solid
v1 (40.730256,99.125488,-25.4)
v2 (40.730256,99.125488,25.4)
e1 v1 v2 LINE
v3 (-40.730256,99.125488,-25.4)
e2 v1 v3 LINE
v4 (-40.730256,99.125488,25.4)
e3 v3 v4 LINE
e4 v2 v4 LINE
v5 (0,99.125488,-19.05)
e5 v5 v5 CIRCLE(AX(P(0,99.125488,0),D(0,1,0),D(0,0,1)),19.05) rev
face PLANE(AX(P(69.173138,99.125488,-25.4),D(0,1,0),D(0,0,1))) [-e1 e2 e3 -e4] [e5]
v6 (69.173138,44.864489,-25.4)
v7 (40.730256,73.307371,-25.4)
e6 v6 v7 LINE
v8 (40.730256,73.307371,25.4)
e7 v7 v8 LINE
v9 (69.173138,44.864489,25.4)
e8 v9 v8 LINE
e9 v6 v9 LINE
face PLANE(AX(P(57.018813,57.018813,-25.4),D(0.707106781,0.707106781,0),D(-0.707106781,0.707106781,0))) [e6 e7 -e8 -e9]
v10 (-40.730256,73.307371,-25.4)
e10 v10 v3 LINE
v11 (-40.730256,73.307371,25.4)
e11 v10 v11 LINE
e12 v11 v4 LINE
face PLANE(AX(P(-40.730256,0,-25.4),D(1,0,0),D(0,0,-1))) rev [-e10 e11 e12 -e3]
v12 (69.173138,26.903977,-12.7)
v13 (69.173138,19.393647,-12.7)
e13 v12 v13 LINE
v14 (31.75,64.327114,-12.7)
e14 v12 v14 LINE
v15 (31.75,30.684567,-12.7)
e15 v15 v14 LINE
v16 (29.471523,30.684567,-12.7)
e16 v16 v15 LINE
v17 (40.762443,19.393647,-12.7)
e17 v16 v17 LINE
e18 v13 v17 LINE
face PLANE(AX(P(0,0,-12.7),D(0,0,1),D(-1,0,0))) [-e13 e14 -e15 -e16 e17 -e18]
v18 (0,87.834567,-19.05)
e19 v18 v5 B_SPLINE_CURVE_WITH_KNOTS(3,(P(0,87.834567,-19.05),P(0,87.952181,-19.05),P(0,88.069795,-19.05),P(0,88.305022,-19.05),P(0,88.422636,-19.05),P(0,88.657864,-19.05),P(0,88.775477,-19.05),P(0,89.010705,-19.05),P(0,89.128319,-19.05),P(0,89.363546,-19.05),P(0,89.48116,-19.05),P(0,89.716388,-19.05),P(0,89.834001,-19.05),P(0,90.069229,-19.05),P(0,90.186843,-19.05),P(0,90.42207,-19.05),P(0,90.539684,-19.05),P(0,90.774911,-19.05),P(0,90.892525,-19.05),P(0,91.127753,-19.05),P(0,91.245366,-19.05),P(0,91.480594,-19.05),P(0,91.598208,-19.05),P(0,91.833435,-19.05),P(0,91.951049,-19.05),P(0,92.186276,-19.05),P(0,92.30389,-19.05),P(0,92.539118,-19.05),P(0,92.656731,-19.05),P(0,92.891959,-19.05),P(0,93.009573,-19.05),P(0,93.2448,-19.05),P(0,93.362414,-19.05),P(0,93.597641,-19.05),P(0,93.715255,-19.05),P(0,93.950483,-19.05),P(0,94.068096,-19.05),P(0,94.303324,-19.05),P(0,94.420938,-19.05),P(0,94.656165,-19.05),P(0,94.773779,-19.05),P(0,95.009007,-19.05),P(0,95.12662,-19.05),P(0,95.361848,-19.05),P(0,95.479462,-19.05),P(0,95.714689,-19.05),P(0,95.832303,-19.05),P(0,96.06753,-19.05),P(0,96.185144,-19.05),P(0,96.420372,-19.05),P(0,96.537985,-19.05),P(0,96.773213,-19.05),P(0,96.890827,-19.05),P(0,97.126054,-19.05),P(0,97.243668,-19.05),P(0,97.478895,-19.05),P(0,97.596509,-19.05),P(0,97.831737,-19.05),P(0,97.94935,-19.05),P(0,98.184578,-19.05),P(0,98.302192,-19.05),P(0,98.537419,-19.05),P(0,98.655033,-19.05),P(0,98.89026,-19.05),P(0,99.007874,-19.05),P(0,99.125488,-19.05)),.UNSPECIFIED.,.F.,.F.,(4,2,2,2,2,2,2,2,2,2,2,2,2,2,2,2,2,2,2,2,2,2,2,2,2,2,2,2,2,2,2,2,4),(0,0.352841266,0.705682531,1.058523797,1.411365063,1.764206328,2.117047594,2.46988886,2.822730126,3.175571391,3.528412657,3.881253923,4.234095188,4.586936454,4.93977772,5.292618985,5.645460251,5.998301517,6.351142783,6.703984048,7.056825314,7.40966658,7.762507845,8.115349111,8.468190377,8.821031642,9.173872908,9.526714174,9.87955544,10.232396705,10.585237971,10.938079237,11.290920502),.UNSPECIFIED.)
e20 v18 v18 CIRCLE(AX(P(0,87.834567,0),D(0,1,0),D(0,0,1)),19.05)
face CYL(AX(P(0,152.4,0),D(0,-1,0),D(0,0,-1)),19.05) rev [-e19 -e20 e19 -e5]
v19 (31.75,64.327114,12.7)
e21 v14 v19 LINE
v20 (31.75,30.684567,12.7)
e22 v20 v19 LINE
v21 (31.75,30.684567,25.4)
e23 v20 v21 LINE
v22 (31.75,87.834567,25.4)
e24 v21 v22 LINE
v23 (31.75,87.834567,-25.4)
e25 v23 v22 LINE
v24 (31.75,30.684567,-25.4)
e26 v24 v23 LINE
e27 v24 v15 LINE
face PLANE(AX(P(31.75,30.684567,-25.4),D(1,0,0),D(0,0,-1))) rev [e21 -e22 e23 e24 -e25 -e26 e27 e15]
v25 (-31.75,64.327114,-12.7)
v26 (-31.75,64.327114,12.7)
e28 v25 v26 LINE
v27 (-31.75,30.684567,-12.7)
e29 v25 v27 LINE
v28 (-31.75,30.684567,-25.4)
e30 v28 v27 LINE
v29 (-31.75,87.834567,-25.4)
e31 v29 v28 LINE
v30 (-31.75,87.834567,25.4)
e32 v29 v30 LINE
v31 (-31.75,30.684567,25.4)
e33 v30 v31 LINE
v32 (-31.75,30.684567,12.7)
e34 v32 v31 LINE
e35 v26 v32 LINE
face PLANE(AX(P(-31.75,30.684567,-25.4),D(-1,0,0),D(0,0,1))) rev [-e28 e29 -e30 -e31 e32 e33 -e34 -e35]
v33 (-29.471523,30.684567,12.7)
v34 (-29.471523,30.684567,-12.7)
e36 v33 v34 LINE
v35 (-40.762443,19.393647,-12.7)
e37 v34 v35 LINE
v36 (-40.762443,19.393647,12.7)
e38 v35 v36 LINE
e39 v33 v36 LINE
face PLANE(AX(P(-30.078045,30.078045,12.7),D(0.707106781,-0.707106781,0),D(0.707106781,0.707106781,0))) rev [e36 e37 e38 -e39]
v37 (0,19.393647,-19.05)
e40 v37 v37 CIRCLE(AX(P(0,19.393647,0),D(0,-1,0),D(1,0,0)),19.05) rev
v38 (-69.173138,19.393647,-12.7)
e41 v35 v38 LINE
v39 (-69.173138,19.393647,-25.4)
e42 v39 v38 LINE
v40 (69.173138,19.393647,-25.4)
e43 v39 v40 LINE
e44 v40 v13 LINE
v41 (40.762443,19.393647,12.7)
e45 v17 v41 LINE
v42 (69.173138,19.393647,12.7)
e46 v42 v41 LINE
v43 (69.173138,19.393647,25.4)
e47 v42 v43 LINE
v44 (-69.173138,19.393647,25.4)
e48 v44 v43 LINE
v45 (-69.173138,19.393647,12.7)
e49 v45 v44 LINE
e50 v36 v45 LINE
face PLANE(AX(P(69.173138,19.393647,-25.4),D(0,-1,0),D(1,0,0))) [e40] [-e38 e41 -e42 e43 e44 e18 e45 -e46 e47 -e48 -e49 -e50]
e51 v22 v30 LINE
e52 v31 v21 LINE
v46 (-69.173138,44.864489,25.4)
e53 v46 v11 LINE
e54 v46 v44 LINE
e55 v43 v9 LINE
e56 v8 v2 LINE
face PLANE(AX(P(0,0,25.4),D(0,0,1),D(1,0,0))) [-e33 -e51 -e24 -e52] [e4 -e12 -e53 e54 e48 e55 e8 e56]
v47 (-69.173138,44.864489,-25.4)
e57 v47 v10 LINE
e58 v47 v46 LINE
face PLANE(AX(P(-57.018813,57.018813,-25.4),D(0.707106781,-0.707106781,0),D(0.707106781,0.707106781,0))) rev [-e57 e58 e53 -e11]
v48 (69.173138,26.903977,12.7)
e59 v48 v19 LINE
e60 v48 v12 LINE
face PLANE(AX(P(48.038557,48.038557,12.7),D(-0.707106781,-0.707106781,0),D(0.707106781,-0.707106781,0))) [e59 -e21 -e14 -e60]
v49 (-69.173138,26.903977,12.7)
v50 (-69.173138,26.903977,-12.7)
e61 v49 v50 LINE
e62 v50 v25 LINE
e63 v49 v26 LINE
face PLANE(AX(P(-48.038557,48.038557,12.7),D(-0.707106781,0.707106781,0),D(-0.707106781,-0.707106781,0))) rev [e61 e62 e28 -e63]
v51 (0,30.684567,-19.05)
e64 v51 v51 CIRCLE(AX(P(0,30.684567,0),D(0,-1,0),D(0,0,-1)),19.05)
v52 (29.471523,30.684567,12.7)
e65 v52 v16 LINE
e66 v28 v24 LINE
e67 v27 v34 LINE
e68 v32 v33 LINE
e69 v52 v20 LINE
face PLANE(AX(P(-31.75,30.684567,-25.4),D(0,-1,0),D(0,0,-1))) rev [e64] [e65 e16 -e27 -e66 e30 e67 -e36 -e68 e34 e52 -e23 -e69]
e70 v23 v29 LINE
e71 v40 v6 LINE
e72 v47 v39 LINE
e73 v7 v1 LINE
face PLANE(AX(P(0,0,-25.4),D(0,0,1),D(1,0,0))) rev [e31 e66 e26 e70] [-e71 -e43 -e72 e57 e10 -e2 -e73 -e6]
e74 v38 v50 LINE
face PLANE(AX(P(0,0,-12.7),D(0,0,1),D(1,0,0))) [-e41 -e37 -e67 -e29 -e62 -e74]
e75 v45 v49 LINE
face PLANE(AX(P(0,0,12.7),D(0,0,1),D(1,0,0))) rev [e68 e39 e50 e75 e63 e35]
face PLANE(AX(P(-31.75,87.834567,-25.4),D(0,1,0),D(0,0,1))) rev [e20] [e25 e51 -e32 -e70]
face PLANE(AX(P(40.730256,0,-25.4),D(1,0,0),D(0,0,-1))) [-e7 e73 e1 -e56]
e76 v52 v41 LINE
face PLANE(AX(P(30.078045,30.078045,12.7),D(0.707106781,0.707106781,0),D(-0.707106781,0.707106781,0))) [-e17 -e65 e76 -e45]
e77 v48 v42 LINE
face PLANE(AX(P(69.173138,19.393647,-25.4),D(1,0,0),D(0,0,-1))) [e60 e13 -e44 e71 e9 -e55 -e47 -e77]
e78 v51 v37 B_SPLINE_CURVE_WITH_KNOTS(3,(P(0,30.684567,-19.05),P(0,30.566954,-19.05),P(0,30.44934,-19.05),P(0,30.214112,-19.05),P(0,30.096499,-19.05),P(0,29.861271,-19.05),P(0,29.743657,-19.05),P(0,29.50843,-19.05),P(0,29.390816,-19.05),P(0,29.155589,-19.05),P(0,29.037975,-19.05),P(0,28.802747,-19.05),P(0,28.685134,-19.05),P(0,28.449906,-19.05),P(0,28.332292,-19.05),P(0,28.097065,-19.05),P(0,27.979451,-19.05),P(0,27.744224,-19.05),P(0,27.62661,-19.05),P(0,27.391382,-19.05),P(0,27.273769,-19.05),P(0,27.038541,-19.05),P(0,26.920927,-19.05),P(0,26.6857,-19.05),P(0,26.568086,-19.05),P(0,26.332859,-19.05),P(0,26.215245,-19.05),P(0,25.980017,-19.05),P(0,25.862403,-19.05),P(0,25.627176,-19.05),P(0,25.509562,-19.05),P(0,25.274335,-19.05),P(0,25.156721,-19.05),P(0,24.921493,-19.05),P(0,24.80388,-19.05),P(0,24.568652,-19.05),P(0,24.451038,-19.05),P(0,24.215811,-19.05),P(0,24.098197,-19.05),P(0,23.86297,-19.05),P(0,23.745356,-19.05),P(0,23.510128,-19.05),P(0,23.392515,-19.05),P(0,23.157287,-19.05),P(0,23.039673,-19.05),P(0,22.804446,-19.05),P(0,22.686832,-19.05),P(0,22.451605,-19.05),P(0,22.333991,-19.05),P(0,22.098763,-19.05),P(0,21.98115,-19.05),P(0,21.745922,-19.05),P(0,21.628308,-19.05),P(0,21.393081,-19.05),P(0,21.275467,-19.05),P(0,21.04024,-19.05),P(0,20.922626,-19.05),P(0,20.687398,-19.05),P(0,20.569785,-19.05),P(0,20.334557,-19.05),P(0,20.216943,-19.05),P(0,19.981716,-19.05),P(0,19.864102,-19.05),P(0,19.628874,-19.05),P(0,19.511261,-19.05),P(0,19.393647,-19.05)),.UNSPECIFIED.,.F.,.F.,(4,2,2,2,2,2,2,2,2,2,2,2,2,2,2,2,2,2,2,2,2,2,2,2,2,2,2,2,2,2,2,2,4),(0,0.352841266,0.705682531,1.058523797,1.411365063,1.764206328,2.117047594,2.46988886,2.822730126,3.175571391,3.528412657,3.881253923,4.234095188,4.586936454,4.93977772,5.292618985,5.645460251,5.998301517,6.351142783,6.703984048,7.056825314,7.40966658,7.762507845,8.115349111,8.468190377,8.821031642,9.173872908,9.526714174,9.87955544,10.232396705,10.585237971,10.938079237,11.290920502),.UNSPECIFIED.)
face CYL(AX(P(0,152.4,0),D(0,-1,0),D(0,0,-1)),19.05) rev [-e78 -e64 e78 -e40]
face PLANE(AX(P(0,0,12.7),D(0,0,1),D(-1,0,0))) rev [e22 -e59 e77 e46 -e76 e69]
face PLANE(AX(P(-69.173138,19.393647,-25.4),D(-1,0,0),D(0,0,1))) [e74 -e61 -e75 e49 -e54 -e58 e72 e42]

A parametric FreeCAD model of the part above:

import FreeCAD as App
import Part
import Sketcher
from FreeCAD import Vector
Q = App.Units.Quantity

doc = App.newDocument("Part")
body = doc.addObject("PartDesign::Body", "Body")

# Sketch on XZ plane
sketch1 = body.newObject("Sketcher::SketchObject", "Sketch")
sketch1.AttachmentSupport = (doc.getObject("XZ_Plane"), [""])
sketch1.MapMode = "FlatFace"
sketch1.addGeometry(Part.Circle(Vector(0, 0, 0), Vector(0, 0, 1), 19), False)
sketch1.addConstraint([
    Sketcher.Constraint("Coincident", 0, 3, -1, 1),
    Sketcher.Constraint("Diameter", 0, Q("1.5 in")),
])
pad1 = body.newObject("PartDesign::Pad", "Pad")
pad1.Profile = sketch1
pad1.Length = Q("6 in")
pad1.Reversed = True

# Sketch on XY plane
sketch2 = body.newObject("Sketcher::SketchObject", "Sketch001")
sketch2.AttachmentSupport = (doc.getObject("XY_Plane"), [""])
sketch2.MapMode = "FlatFace"
sketch2.addGeometry([
    Part.LineSegment(Vector(-6, 90, 0), Vector(-428, -332, 0)),
    Part.LineSegment(Vector(-428, -332, 0), Vector(-392, -332, 0)),
    Part.LineSegment(Vector(-392, -332, 0), Vector(12, 72, 0)),
    Part.LineSegment(Vector(12, 72, 0), Vector(-6, 90, 0)),
], False)
sketch2.addConstraint([
    Sketcher.Constraint("Coincident", 0, 2, 1, 1),
    Sketcher.Constraint("Coincident", 1, 2, 2, 1),
    Sketcher.Constraint("Coincident", 2, 2, 3, 1),
    Sketcher.Constraint("Coincident", 3, 2, 0, 1),
    Sketcher.Constraint("Horizontal", 1),
    Sketcher.Constraint("Parallel", 0, 2),
    Sketcher.Constraint("Perpendicular", 2, 3),
    Sketcher.Constraint("Distance", 3, Q("1 in")),
    Sketcher.Constraint("Angle", 0, Q("-135 deg")),
    Sketcher.Constraint("DistanceY", 0, 2, -1, 1, Q("13.058 in")),
    Sketcher.Constraint("Distance", 0, 596.404461),
    Sketcher.Constraint("DistanceX", 1, 2, -1, 1, 391.82929),
])
pad2 = body.newObject("PartDesign::Pad", "Pad001")
pad2.Profile = sketch2
pad2.Length = Q("1 in")
pad2.Midplane = True
doc.recompute()

mirrored = body.newObject("PartDesign::Mirrored", "Mirrored")
mirrored.Originals = [pad2]
mirrored.MirrorPlane = (doc.getObject("YZ_Plane"), [""])
body.Tip = mirrored
body2 = doc.addObject("PartDesign::Body", "Body001")

# Sketch on XY plane
sketch3 = body2.newObject("Sketcher::SketchObject", "Sketch002")
sketch3.AttachmentSupport = (doc.getObject("XY_Plane001"), [""])
sketch3.MapMode = "FlatFace"
sketch3.AttachmentOffset = App.Placement(Vector(0, 0, 1 * 25.4), App.Rotation())
sketch3.addGeometry([
    Part.LineSegment(Vector(-69, 99, 0), Vector(-69, 19, 0)),
    Part.LineSegment(Vector(-69, 19, 0), Vector(69, 19, 0)),
    Part.LineSegment(Vector(69, 19, 0), Vector(69, 99, 0)),
    Part.LineSegment(Vector(69, 99, 0), Vector(-69, 99, 0)),
], False)
sketch3.addConstraint([
    Sketcher.Constraint("Coincident", 0, 2, 1, 1),
    Sketcher.Constraint("Coincident", 1, 2, 2, 1),
    Sketcher.Constraint("Coincident", 2, 2, 3, 1),
    Sketcher.Constraint("Coincident", 3, 2, 0, 1),
    Sketcher.Constraint("Vertical", 0),
    Sketcher.Constraint("Horizontal", 1),
    Sketcher.Constraint("Vertical", 2),
    Sketcher.Constraint("Horizontal", 3),
    Sketcher.Constraint("DistanceY", 0, 2, 0, 1, 79.731841),
    Sketcher.Constraint("DistanceX", 1, 1, 1, 2, 138.346276),
    Sketcher.Constraint("DistanceX", 0, 2, -1, 1, 69.173138),
    Sketcher.Constraint("DistanceY", -1, 1, 0, 2, 19.393647),
])
pad3 = body2.newObject("PartDesign::Pad", "Pad002")
pad3.Profile = sketch3
pad3.Length = Q("2 in")
pad3.Reversed = True
doc.recompute()

boolean = body2.newObject("PartDesign::Boolean", "Boolean")
boolean.Type = "Cut"
boolean.addObjects([body])

# Sketch on XY plane
sketch4 = body2.newObject("Sketcher::SketchObject", "Sketch003")
sketch4.AttachmentSupport = (doc.getObject("XY_Plane001"), [""])
sketch4.MapMode = "FlatFace"
sketch4.AttachmentOffset = App.Placement(Vector(0, 0, 1 * 25.4), App.Rotation())
sketch4.addGeometry([
    Part.LineSegment(Vector(-32, 88, 0), Vector(-32, 31, 0)),
    Part.LineSegment(Vector(-32, 31, 0), Vector(32, 31, 0)),
    Part.LineSegment(Vector(32, 31, 0), Vector(32, 88, 0)),
    Part.LineSegment(Vector(32, 88, 0), Vector(-32, 88, 0)),
], False)
sketch4.addConstraint([
    Sketcher.Constraint("Coincident", 0, 2, 1, 1),
    Sketcher.Constraint("Coincident", 1, 2, 2, 1),
    Sketcher.Constraint("Coincident", 2, 2, 3, 1),
    Sketcher.Constraint("Coincident", 3, 2, 0, 1),
    Sketcher.Constraint("Vertical", 0),
    Sketcher.Constraint("Horizontal", 1),
    Sketcher.Constraint("Vertical", 2),
    Sketcher.Constraint("Horizontal", 3),
    Sketcher.Constraint("DistanceX", 1, 1, 1, 2, Q("2.5 in")),
    Sketcher.Constraint("DistanceY", 0, 2, 0, 1, Q("2.25 in")),
    Sketcher.Constraint("DistanceX", 0, 2, -1, 1, Q("1.25 in")),
    Sketcher.Constraint("DistanceY", -1, 1, 0, 2, 30.684567),
])
pocket1 = body2.newObject("PartDesign::Pocket", "Pocket")
pocket1.Profile = sketch4
pocket1.Type = "ThroughAll"

# Sketch on XY plane
sketch5 = body2.newObject("Sketcher::SketchObject", "Sketch004")
sketch5.AttachmentSupport = (doc.getObject("XY_Plane001"), [""])
sketch5.MapMode = "FlatFace"
sketch5.AttachmentOffset = App.Placement(Vector(0, 0, 1 * 25.4), App.Rotation())
sketch5.addGeometry([
    Part.LineSegment(Vector(-69, 99, 0), Vector(-69, 45, 0)),
    Part.LineSegment(Vector(-69, 45, 0), Vector(-41, 73, 0)),
    Part.LineSegment(Vector(-41, 73, 0), Vector(-41, 99, 0)),
    Part.LineSegment(Vector(-41, 99, 0), Vector(-69, 99, 0)),
], False)
sketch5.addConstraint([
    Sketcher.Constraint("Coincident", 0, 2, 1, 1),
    Sketcher.Constraint("Coincident", 1, 2, 2, 1),
    Sketcher.Constraint("Coincident", 2, 2, 3, 1),
    Sketcher.Constraint("Coincident", 3, 2, 0, 1),
    Sketcher.Constraint("Vertical", 0),
    Sketcher.Constraint("Vertical", 2),
    Sketcher.Constraint("Horizontal", 3),
    Sketcher.Constraint("Angle", 1, Q("45 deg")),
    Sketcher.Constraint("DistanceY", 0, 2, 0, 1, 54.260999),
    Sketcher.Constraint("DistanceX", 3, 2, 3, 1, 28.442882),
    Sketcher.Constraint("DistanceY", -1, 1, 0, 2, 44.864489),
    Sketcher.Constraint("DistanceX", 0, 2, -1, 1, 69.173138),
])
pocket2 = body2.newObject("PartDesign::Pocket", "Pocket001")
pocket2.Profile = sketch5
pocket2.Type = "ThroughAll"
doc.recompute()

mirrored2 = body2.newObject("PartDesign::Mirrored", "Mirrored001")
mirrored2.Originals = [pocket2]
mirrored2.MirrorPlane = (doc.getObject("YZ_Plane001"), [""])
body2.Tip = mirrored2

doc.recompute()
